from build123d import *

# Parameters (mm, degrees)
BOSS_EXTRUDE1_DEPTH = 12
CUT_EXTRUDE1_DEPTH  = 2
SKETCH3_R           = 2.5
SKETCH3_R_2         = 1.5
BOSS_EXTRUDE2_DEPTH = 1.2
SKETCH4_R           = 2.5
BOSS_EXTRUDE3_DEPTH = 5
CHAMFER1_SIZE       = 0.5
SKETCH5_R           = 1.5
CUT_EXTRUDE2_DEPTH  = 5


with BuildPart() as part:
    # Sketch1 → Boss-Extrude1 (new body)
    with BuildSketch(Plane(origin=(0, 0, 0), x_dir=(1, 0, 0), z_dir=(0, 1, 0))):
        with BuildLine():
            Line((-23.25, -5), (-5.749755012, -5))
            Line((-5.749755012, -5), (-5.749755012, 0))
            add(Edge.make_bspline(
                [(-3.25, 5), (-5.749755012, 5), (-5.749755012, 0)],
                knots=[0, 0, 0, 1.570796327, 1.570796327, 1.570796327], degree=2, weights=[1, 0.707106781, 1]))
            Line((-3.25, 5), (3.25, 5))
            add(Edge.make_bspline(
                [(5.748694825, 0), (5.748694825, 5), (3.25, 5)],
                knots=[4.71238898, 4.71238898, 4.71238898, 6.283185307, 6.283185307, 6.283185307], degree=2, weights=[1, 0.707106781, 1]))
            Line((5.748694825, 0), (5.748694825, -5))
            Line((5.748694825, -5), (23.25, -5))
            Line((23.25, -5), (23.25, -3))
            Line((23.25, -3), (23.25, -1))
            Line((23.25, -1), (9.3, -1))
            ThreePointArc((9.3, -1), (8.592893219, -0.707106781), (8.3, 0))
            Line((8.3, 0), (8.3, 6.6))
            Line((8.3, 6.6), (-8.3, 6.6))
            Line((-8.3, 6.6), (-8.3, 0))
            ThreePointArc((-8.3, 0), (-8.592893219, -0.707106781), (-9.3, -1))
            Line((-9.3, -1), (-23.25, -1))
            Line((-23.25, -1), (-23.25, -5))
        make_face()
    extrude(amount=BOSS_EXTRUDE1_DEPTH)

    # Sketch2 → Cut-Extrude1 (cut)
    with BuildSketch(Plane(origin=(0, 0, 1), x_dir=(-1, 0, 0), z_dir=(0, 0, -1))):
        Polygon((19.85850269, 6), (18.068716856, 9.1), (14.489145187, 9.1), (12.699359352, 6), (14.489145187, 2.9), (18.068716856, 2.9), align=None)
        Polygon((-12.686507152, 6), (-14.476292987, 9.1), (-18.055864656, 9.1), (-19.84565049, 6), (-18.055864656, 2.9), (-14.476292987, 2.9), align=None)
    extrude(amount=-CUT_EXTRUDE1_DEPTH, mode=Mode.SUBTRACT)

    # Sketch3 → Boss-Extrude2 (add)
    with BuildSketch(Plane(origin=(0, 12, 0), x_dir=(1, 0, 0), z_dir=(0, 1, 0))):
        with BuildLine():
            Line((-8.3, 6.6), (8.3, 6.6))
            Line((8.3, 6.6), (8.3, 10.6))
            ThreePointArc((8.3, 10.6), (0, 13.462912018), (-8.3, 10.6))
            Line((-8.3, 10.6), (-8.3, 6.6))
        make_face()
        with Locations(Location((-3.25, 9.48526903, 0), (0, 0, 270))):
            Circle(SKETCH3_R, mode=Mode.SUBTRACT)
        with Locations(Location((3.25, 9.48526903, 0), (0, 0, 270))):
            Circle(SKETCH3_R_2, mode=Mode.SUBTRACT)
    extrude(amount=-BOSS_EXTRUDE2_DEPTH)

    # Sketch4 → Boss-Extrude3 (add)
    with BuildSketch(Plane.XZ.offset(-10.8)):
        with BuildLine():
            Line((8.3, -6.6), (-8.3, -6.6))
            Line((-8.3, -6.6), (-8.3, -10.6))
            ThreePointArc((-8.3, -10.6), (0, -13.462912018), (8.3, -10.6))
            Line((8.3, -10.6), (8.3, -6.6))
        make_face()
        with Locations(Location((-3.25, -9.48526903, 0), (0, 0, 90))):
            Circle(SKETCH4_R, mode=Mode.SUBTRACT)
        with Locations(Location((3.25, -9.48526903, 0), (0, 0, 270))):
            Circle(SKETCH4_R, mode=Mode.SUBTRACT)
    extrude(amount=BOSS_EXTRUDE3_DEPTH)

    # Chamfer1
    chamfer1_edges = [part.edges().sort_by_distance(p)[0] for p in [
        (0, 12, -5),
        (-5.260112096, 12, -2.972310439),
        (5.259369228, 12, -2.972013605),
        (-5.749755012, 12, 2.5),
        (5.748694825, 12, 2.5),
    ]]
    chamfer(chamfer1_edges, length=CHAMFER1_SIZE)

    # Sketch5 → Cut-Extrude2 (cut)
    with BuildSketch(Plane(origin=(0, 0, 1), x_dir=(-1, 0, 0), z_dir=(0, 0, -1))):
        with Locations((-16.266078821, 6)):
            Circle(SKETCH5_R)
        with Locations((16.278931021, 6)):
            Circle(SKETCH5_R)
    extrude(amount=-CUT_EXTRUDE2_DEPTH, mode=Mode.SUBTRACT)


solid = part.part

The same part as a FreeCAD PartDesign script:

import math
import FreeCAD as App
import Part
import Sketcher
Q = App.Units.Quantity


def edges_at(feature, points):
    """Names of the edges that pass closest to the given points."""
    edges = feature.Shape.Edges
    near = lambda p: min(range(len(edges)), key=lambda i: edges[i].distToShape(Part.Vertex(*p))[0])
    return sorted({f"Edge{near(p) + 1}" for p in points})


def add_polygon(sketch, points):
    """Adds a closed chain of lines whose ends are joined by coincident constraints."""
    first, n = sketch.GeometryCount, len(points)
    for a, b in zip(points, points[1:] + points[:1]):
        sketch.addGeometry(Part.LineSegment(App.Vector(*a, 0), App.Vector(*b, 0)), False)
    for i in range(n):
        sketch.addConstraint(Sketcher.Constraint("Coincident", first + i, 2, first + (i + 1) % n, 1))

doc = App.newDocument("Part")
body = doc.addObject("PartDesign::Body", "Body")

# Sketch on XZ plane
sketch1 = body.newObject("Sketcher::SketchObject", "Sketch")
sketch1.AttachmentSupport = (doc.getObject("XZ_Plane"), [""])
sketch1.MapMode = "FlatFace"
sketch1.addGeometry([
    Part.LineSegment(App.Vector(-23.25, 5, 0), App.Vector(-5.749755, 5, 0)),  # 0
    Part.LineSegment(App.Vector(-5.749755, 5, 0), App.Vector(-5.749755, 0, 0)),  # 1
    Part.BSplineCurve([App.Vector(-3.25, -5, 0), App.Vector(-5.749755, -5, 0), App.Vector(-5.749755, 0, 0)], [3, 3], [0, 1.570796327], False, 2, [1, 0.707106781, 1], False),  # 2
    Part.LineSegment(App.Vector(-3.25, -5, 0), App.Vector(3.25, -5, 0)),  # 3
    Part.BSplineCurve([App.Vector(5.748695, 0, 0), App.Vector(5.748695, -5, 0), App.Vector(3.25, -5, 0)], [3, 3], [4.71238898, 6.283185307], False, 2, [1, 0.707106781, 1], False),  # 4
    Part.LineSegment(App.Vector(5.748695, 0, 0), App.Vector(5.748695, 5, 0)),  # 5
    Part.LineSegment(App.Vector(5.748695, 5, 0), App.Vector(23.25, 5, 0)),  # 6
    Part.LineSegment(App.Vector(23.25, 5, 0), App.Vector(23.25, 1, 0)),  # 7
    Part.LineSegment(App.Vector(23.25, 1, 0), App.Vector(9.3, 1, 0)),  # 8
    Part.ArcOfCircle(Part.Circle(App.Vector(9.3, 0, 0), App.Vector(0, 0, 1), 1), math.radians(90), math.radians(180)),  # 9
    Part.LineSegment(App.Vector(8.3, 0, 0), App.Vector(8.3, -6.6, 0)),  # 10
    Part.LineSegment(App.Vector(8.3, -6.6, 0), App.Vector(-8.3, -6.6, 0)),  # 11
    Part.LineSegment(App.Vector(-8.3, -6.6, 0), App.Vector(-8.3, 0, 0)),  # 12
    Part.ArcOfCircle(Part.Circle(App.Vector(-9.3, 0, 0), App.Vector(0, 0, 1), 1), math.radians(0), math.radians(90)),  # 13
    Part.LineSegment(App.Vector(-9.3, 1, 0), App.Vector(-23.25, 1, 0)),  # 14
    Part.LineSegment(App.Vector(-23.25, 1, 0), App.Vector(-23.25, 5, 0)),  # 15
], False)
sketch1.addConstraint([
    Sketcher.Constraint("Block", 2),
    Sketcher.Constraint("Block", 4),
    Sketcher.Constraint("Coincident", 0, 2, 1, 1),
    Sketcher.Constraint("Coincident", 1, 2, 2, 2),
    Sketcher.Constraint("Coincident", 2, 1, 3, 1),
    Sketcher.Constraint("Coincident", 3, 2, 4, 2),
    Sketcher.Constraint("Coincident", 4, 1, 5, 1),
    Sketcher.Constraint("Coincident", 5, 2, 6, 1),
    Sketcher.Constraint("Coincident", 6, 2, 7, 1),
    Sketcher.Constraint("Coincident", 7, 2, 8, 1),
    Sketcher.Constraint("Tangent", 8, 2, 9, 1),
    Sketcher.Constraint("Tangent", 9, 2, 10, 1),
    Sketcher.Constraint("Coincident", 10, 2, 11, 1),
    Sketcher.Constraint("Coincident", 11, 2, 12, 1),
    Sketcher.Constraint("Tangent", 12, 2, 13, 1),
    Sketcher.Constraint("Tangent", 13, 2, 14, 1),
    Sketcher.Constraint("Coincident", 14, 2, 15, 1),
    Sketcher.Constraint("Coincident", 15, 2, 0, 1),
    Sketcher.Constraint("Horizontal", 0),
    Sketcher.Constraint("Vertical", 1),
    Sketcher.Constraint("Vertical", 5),
    Sketcher.Constraint("Horizontal", 6),
    Sketcher.Constraint("Vertical", 7),
    Sketcher.Constraint("Horizontal", 8),
    Sketcher.Constraint("Vertical", 10),
    Sketcher.Constraint("Horizontal", 11),
    Sketcher.Constraint("Vertical", 12),
    Sketcher.Constraint("Horizontal", 14),
    Sketcher.Constraint("Vertical", 15),
    Sketcher.Constraint("Equal", 9, 13),
    Sketcher.Constraint("Symmetric", 9, 3, 13, 3, -1, 1),
    Sketcher.Constraint("Symmetric", 7, 2, 14, 2, -2),
    Sketcher.Constraint("Horizontal", 0, 2, 5, 2),
    Sketcher.Constraint("Radius", 9, Q("1 mm")),
    Sketcher.Constraint("DistanceY", 1, 2, 1, 1, Q("5 mm")),
    Sketcher.Constraint("DistanceX", 11, 2, 11, 1, Q("16.6 mm")),
    Sketcher.Constraint("DistanceY", 10, 2, 10, 1, Q("6.6 mm")),
    Sketcher.Constraint("DistanceX", 3, 2, 6, 2, Q("20 mm")),
])
pad1 = body.newObject("PartDesign::Pad", "Pad")
pad1.Profile = sketch1
pad1.Length = 12
pad1.Reversed = True

# Sketch on XY plane
sketch2 = body.newObject("Sketcher::SketchObject", "Sketch001")
sketch2.AttachmentSupport = (doc.getObject("XY_Plane"), [""])
sketch2.MapMode = "FlatFace"
sketch2.AttachmentOffset = App.Placement(App.Vector(0, 0, 1), App.Rotation())
add_polygon(sketch2, [(-19.9, 6), (-18.1, 9.1), (-14.5, 9.1), (-12.7, 6), (-14.5, 2.9), (-18.1, 2.9)])  # lines 0-5
add_polygon(sketch2, [(12.7, 6), (14.5, 9.1), (18.1, 9.1), (19.8, 6), (18.1, 2.9), (14.5, 2.9)])  # lines 6-11
sketch2.addConstraint([
    Sketcher.Constraint("Horizontal", 1),
    Sketcher.Constraint("Horizontal", 4),
    Sketcher.Constraint("Horizontal", 7),
    Sketcher.Constraint("Horizontal", 10),
    Sketcher.Constraint("Parallel", 0, 3),
    Sketcher.Constraint("Parallel", 2, 5),
    Sketcher.Constraint("Parallel", 3, 6),
    Sketcher.Constraint("Parallel", 5, 8),
    Sketcher.Constraint("Parallel", 6, 9),
    Sketcher.Constraint("Parallel", 8, 11),
    Sketcher.Constraint("Horizontal", 2, 2, 5, 2),
    Sketcher.Constraint("Horizontal", 1, 2, 6, 2),
    Sketcher.Constraint("Horizontal", 5, 2, 8, 2),
    Sketcher.Constraint("Horizontal", 4, 2, 9, 2),
    Sketcher.Constraint("Horizontal", 8, 2, 11, 2),
    Sketcher.Constraint("Vertical", 1, 2, 3, 2),
    Sketcher.Constraint("Vertical", 0, 2, 4, 2),
    Sketcher.Constraint("Equal", 4, 7),
    Sketcher.Constraint("Angle", 0, Q("60 deg")),
    Sketcher.Constraint("DistanceY", -1, 1, 2, 2, Q("6 mm")),
    Sketcher.Constraint("DistanceY", -1, 1, 0, 2, Q("9.1 mm")),
    Sketcher.Constraint("DistanceX", 1, 1, 1, 2, Q("3.579572 mm")),
    Sketcher.Constraint("DistanceX", 2, 2, -1, 1, Q("12.699359 mm")),
    Sketcher.Constraint("DistanceX", -1, 1, 8, 2, Q("19.84565 mm")),
])
pocket1 = body.newObject("PartDesign::Pocket", "Pocket")
pocket1.Profile = sketch2
pocket1.Length = 2
pocket1.Reversed = True

# Sketch on XZ plane
sketch3 = body.newObject("Sketcher::SketchObject", "Sketch002")
sketch3.AttachmentSupport = (doc.getObject("XZ_Plane"), [""])
sketch3.MapMode = "FlatFace"
sketch3.AttachmentOffset = App.Placement(App.Vector(0, 0, -12), App.Rotation())
sketch3.addGeometry([
    Part.LineSegment(App.Vector(-8.3, -6.6, 0), App.Vector(8.3, -6.6, 0)),  # 0
    Part.LineSegment(App.Vector(8.3, -6.6, 0), App.Vector(8.3, -10.6, 0)),  # 1
    Part.ArcOfCircle(Part.Circle(App.Vector(0, 0, 0), App.Vector(0, 0, 1), 13.5), math.radians(-128), math.radians(-52)),  # 2
    Part.LineSegment(App.Vector(-8.3, -10.6, 0), App.Vector(-8.3, -6.6, 0)),  # 3
    Part.Circle(App.Vector(-3.2, -9.5, 0), App.Vector(0, 0, 1), 2.5),  # 4
    Part.Circle(App.Vector(3.2, -9.5, 0), App.Vector(0, 0, 1), 1.5),  # 5
], False)
sketch3.addConstraint([
    Sketcher.Constraint("Coincident", 0, 2, 1, 1),
    Sketcher.Constraint("Coincident", 1, 2, 2, 2),
    Sketcher.Constraint("Coincident", 2, 1, 3, 1),
    Sketcher.Constraint("Coincident", 3, 2, 0, 1),
    Sketcher.Constraint("Horizontal", 0),
    Sketcher.Constraint("Vertical", 1),
    Sketcher.Constraint("Vertical", 3),
    Sketcher.Constraint("Coincident", 2, 3, -1, 1),
    Sketcher.Constraint("Symmetric", 4, 3, 5, 3, -2),
    Sketcher.Constraint("Horizontal", 1, 2, 2, 1),
    Sketcher.Constraint("Diameter", 4, Q("5 mm")),
    Sketcher.Constraint("Diameter", 5, Q("3 mm")),
    Sketcher.Constraint("DistanceY", 1, 2, 1, 1, Q("4 mm")),
    Sketcher.Constraint("DistanceX", 0, 1, 0, 2, Q("16.6 mm")),
    Sketcher.Constraint("DistanceY", 0, 2, -1, 1, Q("6.6 mm")),
    Sketcher.Constraint("DistanceX", 4, 3, 5, 3, Q("6.5 mm")),
    Sketcher.Constraint("DistanceY", 4, 3, -1, 1, Q("9.485269 mm")),
])
pad2 = body.newObject("PartDesign::Pad", "Pad001")
pad2.Profile = sketch3
pad2.Length = 1.2

# Sketch on XZ plane
sketch4 = body.newObject("Sketcher::SketchObject", "Sketch003")
sketch4.AttachmentSupport = (doc.getObject("XZ_Plane"), [""])
sketch4.MapMode = "FlatFace"
sketch4.AttachmentOffset = App.Placement(App.Vector(0, 0, -10.8), App.Rotation())
sketch4.addGeometry([
    Part.LineSegment(App.Vector(8.3, -6.6, 0), App.Vector(-8.3, -6.6, 0)),  # 0
    Part.LineSegment(App.Vector(-8.3, -6.6, 0), App.Vector(-8.3, -10.6, 0)),  # 1
    Part.ArcOfCircle(Part.Circle(App.Vector(0, 0, 0), App.Vector(0, 0, 1), 13.5), math.radians(-128), math.radians(-52)),  # 2
    Part.LineSegment(App.Vector(8.3, -10.6, 0), App.Vector(8.3, -6.6, 0)),  # 3
    Part.Circle(App.Vector(-3.2, -9.5, 0), App.Vector(0, 0, 1), 2.5),  # 4
    Part.Circle(App.Vector(3.2, -9.5, 0), App.Vector(0, 0, 1), 2.5),  # 5
], False)
sketch4.addConstraint([
    Sketcher.Constraint("Coincident", 0, 2, 1, 1),
    Sketcher.Constraint("Coincident", 1, 2, 2, 1),
    Sketcher.Constraint("Coincident", 2, 2, 3, 1),
    Sketcher.Constraint("Coincident", 3, 2, 0, 1),
    Sketcher.Constraint("Horizontal", 0),
    Sketcher.Constraint("Vertical", 1),
    Sketcher.Constraint("Vertical", 3),
    Sketcher.Constraint("Coincident", 2, 3, -1, 1),
    Sketcher.Constraint("Equal", 4, 5),
    Sketcher.Constraint("Symmetric", 4, 3, 5, 3, -2),
    Sketcher.Constraint("Horizontal", 1, 2, 2, 2),
    Sketcher.Constraint("Diameter", 4, Q("5 mm")),
    Sketcher.Constraint("DistanceY", 1, 2, 1, 1, Q("4 mm")),
    Sketcher.Constraint("DistanceX", 0, 2, 0, 1, Q("16.6 mm")),
    Sketcher.Constraint("DistanceY", 0, 2, -1, 1, Q("6.6 mm")),
    Sketcher.Constraint("DistanceX", 4, 3, 5, 3, Q("6.5 mm")),
    Sketcher.Constraint("DistanceY", 4, 3, -1, 1, Q("9.485269 mm")),
])
pad3 = body.newObject("PartDesign::Pad", "Pad002")
pad3.Profile = sketch4
pad3.Length = 5
doc.recompute()

chamfer = body.newObject("PartDesign::Chamfer", "Chamfer")
chamfer.Base = (pad3, edges_at(pad3, [
    (0, 12, -5),
    (-5.26, 12, -2.972),
    (5.259, 12, -2.972),
    (-5.75, 12, 2.5),
    (5.749, 12, 2.5),
]))
chamfer.Size = 0.5

# Sketch on XY plane
sketch5 = body.newObject("Sketcher::SketchObject", "Sketch004")
sketch5.AttachmentSupport = (doc.getObject("XY_Plane"), [""])
sketch5.MapMode = "FlatFace"
sketch5.AttachmentOffset = App.Placement(App.Vector(0, 0, 1), App.Rotation())
sketch5.addGeometry([
    Part.Circle(App.Vector(16.3, 6, 0), App.Vector(0, 0, 1), 1.5),
    Part.Circle(App.Vector(-16.3, 6, 0), App.Vector(0, 0, 1), 1.5),
], False)
sketch5.addConstraint([
    Sketcher.Constraint("Equal", 0, 1),
    Sketcher.Constraint("Horizontal", 0, 3, 1, 3),
    Sketcher.Constraint("Diameter", 0, Q("3 mm")),
    Sketcher.Constraint("DistanceY", -1, 1, 0, 3, Q("6 mm")),
    Sketcher.Constraint("DistanceX", -1, 1, 0, 3, Q("16.266079 mm")),
    Sketcher.Constraint("DistanceX", 1, 3, -1, 1, Q("16.278931 mm")),
])
pocket2 = body.newObject("PartDesign::Pocket", "Pocket001")
pocket2.Profile = sketch5
pocket2.Length = 5
pocket2.Reversed = True

doc.recompute()
